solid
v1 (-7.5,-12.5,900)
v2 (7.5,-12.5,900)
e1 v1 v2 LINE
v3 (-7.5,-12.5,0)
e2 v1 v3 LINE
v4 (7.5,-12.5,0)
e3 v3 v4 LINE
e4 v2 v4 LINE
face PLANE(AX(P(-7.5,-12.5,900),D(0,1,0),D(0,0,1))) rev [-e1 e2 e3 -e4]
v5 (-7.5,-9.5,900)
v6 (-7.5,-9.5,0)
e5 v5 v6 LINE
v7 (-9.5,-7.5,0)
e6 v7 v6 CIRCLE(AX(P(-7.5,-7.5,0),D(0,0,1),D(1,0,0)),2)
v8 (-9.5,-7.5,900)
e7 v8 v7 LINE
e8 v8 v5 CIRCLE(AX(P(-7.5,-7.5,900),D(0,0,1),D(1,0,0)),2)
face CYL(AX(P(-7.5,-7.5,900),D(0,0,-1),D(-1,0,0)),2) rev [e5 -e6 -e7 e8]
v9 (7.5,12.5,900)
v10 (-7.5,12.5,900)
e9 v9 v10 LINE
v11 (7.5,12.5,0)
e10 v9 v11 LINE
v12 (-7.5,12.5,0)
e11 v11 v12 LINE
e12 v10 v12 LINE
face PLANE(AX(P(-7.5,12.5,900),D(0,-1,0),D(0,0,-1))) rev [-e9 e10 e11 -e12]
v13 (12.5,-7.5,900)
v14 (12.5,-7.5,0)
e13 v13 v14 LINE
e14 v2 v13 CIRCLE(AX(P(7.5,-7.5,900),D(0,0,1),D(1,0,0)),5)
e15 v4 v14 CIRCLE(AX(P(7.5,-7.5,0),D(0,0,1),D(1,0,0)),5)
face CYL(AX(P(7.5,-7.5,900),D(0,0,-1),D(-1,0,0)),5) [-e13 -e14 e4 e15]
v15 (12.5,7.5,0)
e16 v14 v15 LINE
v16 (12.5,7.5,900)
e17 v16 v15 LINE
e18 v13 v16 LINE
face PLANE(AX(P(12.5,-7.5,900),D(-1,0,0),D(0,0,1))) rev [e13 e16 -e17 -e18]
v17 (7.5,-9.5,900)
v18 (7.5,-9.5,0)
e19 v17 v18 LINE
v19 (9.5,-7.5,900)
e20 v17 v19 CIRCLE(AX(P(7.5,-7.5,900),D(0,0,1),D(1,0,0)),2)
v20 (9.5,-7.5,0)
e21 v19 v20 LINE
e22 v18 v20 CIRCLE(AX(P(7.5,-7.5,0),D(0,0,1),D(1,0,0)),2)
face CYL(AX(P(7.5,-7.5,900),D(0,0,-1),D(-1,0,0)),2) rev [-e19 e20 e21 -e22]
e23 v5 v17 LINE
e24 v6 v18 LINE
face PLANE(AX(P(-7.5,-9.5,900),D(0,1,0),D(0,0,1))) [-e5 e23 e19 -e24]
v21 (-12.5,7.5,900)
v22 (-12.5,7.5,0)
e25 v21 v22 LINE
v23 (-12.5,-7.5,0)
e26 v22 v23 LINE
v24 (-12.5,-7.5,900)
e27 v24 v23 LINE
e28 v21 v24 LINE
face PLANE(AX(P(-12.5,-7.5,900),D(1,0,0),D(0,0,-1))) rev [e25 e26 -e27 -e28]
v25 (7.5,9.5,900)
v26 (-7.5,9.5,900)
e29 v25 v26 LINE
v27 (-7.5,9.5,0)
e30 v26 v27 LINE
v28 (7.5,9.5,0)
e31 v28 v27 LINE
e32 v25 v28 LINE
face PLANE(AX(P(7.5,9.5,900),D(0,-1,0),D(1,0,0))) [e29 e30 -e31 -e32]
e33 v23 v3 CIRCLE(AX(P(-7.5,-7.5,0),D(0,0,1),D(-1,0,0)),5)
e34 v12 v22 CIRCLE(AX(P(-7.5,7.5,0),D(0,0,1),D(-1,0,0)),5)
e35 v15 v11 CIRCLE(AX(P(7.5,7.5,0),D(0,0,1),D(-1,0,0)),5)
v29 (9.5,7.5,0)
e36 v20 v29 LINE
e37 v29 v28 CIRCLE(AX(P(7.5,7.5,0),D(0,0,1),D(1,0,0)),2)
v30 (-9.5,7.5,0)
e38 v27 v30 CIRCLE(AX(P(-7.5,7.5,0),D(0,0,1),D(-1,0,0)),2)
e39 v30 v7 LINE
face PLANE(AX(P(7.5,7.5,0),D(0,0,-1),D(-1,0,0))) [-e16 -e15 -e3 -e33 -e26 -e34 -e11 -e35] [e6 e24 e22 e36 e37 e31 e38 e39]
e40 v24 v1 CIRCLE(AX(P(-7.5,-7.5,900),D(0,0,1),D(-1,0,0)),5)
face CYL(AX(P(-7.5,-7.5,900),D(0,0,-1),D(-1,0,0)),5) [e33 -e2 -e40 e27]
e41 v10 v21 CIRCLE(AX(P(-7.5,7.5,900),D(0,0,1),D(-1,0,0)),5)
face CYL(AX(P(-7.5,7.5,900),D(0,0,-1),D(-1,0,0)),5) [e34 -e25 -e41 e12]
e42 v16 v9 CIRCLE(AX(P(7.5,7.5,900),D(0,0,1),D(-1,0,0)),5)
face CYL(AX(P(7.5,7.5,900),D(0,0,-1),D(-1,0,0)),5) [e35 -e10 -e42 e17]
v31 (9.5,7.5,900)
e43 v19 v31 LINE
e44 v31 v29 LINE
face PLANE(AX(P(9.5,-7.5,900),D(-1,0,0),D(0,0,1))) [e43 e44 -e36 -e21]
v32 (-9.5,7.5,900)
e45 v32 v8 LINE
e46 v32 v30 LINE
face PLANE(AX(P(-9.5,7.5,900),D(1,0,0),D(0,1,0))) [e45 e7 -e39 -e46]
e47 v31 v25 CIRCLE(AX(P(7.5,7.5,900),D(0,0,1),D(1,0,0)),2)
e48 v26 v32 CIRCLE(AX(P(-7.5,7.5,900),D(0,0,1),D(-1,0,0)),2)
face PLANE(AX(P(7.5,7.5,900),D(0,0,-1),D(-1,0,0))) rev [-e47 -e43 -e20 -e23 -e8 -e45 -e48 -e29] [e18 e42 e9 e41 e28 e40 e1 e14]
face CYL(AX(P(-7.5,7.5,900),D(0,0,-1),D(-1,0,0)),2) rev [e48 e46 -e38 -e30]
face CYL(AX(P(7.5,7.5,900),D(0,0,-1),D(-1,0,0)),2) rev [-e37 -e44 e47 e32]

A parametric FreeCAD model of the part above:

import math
import FreeCAD as App
import Part
import Sketcher

V = App.Vector
Q = App.Units.Quantity

doc = App.newDocument("Part")
body = doc.addObject("PartDesign::Body", "Body")

# Sketch on XY plane
sketch1 = body.newObject("Sketcher::SketchObject", "Sketch")
sketch1.AttachmentSupport = (doc.getObject("XY_Plane"), [""])
sketch1.MapMode = "FlatFace"
sketch1.addGeometry([
    Part.LineSegment(V(-7.5, -12.5, 0), V(7.5, -12.5, 0)),  # 0
    Part.ArcOfCircle(Part.Circle(V(7.5, -7.5, 0), V(0, 0, 1), 5), math.radians(-90), math.radians(0)),  # 1
    Part.LineSegment(V(12.5, -7.5, 0), V(12.5, 7.5, 0)),  # 2
    Part.ArcOfCircle(Part.Circle(V(7.5, 7.5, 0), V(0, 0, 1), 5), math.radians(0), math.radians(90)),  # 3
    Part.LineSegment(V(7.5, 12.5, 0), V(-7.5, 12.5, 0)),  # 4
    Part.ArcOfCircle(Part.Circle(V(-7.5, 7.5, 0), V(0, 0, 1), 5), math.radians(90), math.radians(180)),  # 5
    Part.LineSegment(V(-12.5, 7.5, 0), V(-12.5, -7.5, 0)),  # 6
    Part.ArcOfCircle(Part.Circle(V(-7.5, -7.5, 0), V(0, 0, 1), 5), math.radians(180), math.radians(270)),  # 7
    Part.LineSegment(V(-9.5, -7.5, 0), V(-9.5, 7.5, 0)),  # 8
    Part.ArcOfCircle(Part.Circle(V(-7.5, 7.5, 0), V(0, 0, 1), 2), math.radians(90), math.radians(180)),  # 9
    Part.LineSegment(V(-7.5, 9.5, 0), V(7.5, 9.5, 0)),  # 10
    Part.ArcOfCircle(Part.Circle(V(7.5, 7.5, 0), V(0, 0, 1), 2), math.radians(0), math.radians(90)),  # 11
    Part.LineSegment(V(9.5, 7.5, 0), V(9.5, -7.5, 0)),  # 12
    Part.ArcOfCircle(Part.Circle(V(7.5, -7.5, 0), V(0, 0, 1), 2), math.radians(-90), math.radians(0)),  # 13
    Part.LineSegment(V(7.5, -9.5, 0), V(-7.5, -9.5, 0)),  # 14
    Part.ArcOfCircle(Part.Circle(V(-7.5, -7.5, 0), V(0, 0, 1), 2), math.radians(-180), math.radians(-90)),  # 15
], False)
sketch1.addConstraint([
    Sketcher.Constraint("Tangent", 0, 2, 1, 1),
    Sketcher.Constraint("Tangent", 1, 2, 2, 1),
    Sketcher.Constraint("Tangent", 2, 2, 3, 1),
    Sketcher.Constraint("Tangent", 3, 2, 4, 1),
    Sketcher.Constraint("Tangent", 4, 2, 5, 1),
    Sketcher.Constraint("Tangent", 5, 2, 6, 1),
    Sketcher.Constraint("Tangent", 6, 2, 7, 1),
    Sketcher.Constraint("Tangent", 7, 2, 0, 1),
    Sketcher.Constraint("Tangent", 8, 2, 9, 2),
    Sketcher.Constraint("Tangent", 9, 1, 10, 1),
    Sketcher.Constraint("Tangent", 10, 2, 11, 2),
    Sketcher.Constraint("Tangent", 11, 1, 12, 1),
    Sketcher.Constraint("Tangent", 12, 2, 13, 2),
    Sketcher.Constraint("Tangent", 13, 1, 14, 1),
    Sketcher.Constraint("Tangent", 14, 2, 15, 2),
    Sketcher.Constraint("Tangent", 15, 1, 8, 1),
    Sketcher.Constraint("Horizontal", 0),
    Sketcher.Constraint("Vertical", 2),
    Sketcher.Constraint("Horizontal", 4),
    Sketcher.Constraint("Vertical", 6),
    Sketcher.Constraint("Vertical", 8),
    Sketcher.Constraint("Horizontal", 10),
    Sketcher.Constraint("Vertical", 12),
    Sketcher.Constraint("Horizontal", 14),
    Sketcher.Constraint("Coincident", 9, 3, 5, 3),
    Sketcher.Constraint("Coincident", 11, 3, 3, 3),
    Sketcher.Constraint("Coincident", 13, 3, 1, 3),
    Sketcher.Constraint("Equal", 1, 3),
    Sketcher.Constraint("Equal", 3, 5),
    Sketcher.Constraint("Equal", 5, 7),
    Sketcher.Constraint("Equal", 13, 15),
    Sketcher.Constraint("Symmetric", 1, 3, 5, 3, -1, 1),
    Sketcher.Constraint("Equal", 14, 2),
    Sketcher.Constraint("Radius", 1, Q("5 mm")),
    Sketcher.Constraint("Radius", 9, Q("2 mm")),
    Sketcher.Constraint("DistanceX", 0, 1, 0, 2, Q("15 mm")),
])
pad1 = body.newObject("PartDesign::Pad", "Pad")
pad1.Profile = sketch1
pad1.Length = 900

doc.recompute()
